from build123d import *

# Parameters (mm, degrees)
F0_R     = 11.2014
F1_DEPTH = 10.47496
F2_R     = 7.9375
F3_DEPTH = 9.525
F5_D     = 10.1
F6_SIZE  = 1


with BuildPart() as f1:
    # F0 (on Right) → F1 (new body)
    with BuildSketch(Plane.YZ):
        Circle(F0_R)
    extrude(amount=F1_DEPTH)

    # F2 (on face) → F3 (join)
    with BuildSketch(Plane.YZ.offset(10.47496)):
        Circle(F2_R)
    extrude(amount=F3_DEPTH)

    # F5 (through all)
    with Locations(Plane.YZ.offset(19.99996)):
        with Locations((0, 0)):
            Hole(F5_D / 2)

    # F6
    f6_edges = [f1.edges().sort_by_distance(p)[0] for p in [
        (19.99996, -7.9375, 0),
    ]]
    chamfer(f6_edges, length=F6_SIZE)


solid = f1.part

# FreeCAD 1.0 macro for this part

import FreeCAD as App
import Part
import Sketcher
from FreeCAD import Vector
Q = App.Units.Quantity


def edges_at(feature, points):
    """Names of the edges that pass closest to the given points."""
    edges = feature.Shape.Edges
    near = lambda p: min(range(len(edges)), key=lambda i: edges[i].distToShape(Part.Vertex(*p))[0])
    return sorted({f"Edge{near(p) + 1}" for p in points})

doc = App.newDocument("Part")
body = doc.addObject("PartDesign::Body", "Body")

sketch1 = body.newObject("Sketcher::SketchObject", "Sketch")
sketch1.AttachmentSupport = (doc.getObject("YZ_Plane"), [""])
sketch1.MapMode = "FlatFace"
sketch1.addGeometry(Part.Circle(Vector(0, 0, 0), Vector(0, 0, 1), 11), False)
sketch1.addConstraint(Sketcher.Constraint("Coincident", 0, 3, -1, 1))
sketch1.addConstraint(Sketcher.Constraint("Diameter", 0, Q("0.882 in")))
pad1 = body.newObject("PartDesign::Pad", "Pad")
pad1.Profile = sketch1
pad1.Length = Q("0.4124 in")

sketch2 = body.newObject("Sketcher::SketchObject", "Sketch001")
sketch2.AttachmentSupport = (doc.getObject("YZ_Plane"), [""])
sketch2.MapMode = "FlatFace"
sketch2.AttachmentOffset = App.Placement(Vector(0, 0, 0.4124 * 25.4), App.Rotation())
sketch2.addGeometry(Part.Circle(Vector(0, 0, 0), Vector(0, 0, 1), 8), False)
sketch2.addConstraint(Sketcher.Constraint("Coincident", 0, 3, -1, 1))
sketch2.addConstraint(Sketcher.Constraint("Diameter", 0, Q("0.625 in")))
pad2 = body.newObject("PartDesign::Pad", "Pad001")
pad2.Profile = sketch2
pad2.Length = Q("0.375 in")

sketch3 = body.newObject("Sketcher::SketchObject", "Sketch002")
sketch3.AttachmentSupport = (doc.getObject("YZ_Plane"), [""])
sketch3.MapMode = "FlatFace"
sketch3.AttachmentOffset = App.Placement(Vector(0, 0, 0.7874 * 25.4), App.Rotation())
sketch3.addGeometry(Part.Circle(Vector(0, 0, 0), Vector(0, 0, 1), 5), False)
sketch3.addConstraint(Sketcher.Constraint("Coincident", 0, 3, -1, 1))
sketch3.addConstraint(Sketcher.Constraint("Diameter", 0, 10.1))
doc.recompute()
hole = body.newObject("PartDesign::Hole", "Hole")
hole.Profile = sketch3
hole.ThreadType = "None"
hole.Diameter = 10.1
hole.DepthType = "ThroughAll"
doc.recompute()

chamfer = body.newObject("PartDesign::Chamfer", "Chamfer")
chamfer.Base = (hole, edges_at(hole, [(20, -7.938, 0)]))
chamfer.Size = 1

doc.recompute()
